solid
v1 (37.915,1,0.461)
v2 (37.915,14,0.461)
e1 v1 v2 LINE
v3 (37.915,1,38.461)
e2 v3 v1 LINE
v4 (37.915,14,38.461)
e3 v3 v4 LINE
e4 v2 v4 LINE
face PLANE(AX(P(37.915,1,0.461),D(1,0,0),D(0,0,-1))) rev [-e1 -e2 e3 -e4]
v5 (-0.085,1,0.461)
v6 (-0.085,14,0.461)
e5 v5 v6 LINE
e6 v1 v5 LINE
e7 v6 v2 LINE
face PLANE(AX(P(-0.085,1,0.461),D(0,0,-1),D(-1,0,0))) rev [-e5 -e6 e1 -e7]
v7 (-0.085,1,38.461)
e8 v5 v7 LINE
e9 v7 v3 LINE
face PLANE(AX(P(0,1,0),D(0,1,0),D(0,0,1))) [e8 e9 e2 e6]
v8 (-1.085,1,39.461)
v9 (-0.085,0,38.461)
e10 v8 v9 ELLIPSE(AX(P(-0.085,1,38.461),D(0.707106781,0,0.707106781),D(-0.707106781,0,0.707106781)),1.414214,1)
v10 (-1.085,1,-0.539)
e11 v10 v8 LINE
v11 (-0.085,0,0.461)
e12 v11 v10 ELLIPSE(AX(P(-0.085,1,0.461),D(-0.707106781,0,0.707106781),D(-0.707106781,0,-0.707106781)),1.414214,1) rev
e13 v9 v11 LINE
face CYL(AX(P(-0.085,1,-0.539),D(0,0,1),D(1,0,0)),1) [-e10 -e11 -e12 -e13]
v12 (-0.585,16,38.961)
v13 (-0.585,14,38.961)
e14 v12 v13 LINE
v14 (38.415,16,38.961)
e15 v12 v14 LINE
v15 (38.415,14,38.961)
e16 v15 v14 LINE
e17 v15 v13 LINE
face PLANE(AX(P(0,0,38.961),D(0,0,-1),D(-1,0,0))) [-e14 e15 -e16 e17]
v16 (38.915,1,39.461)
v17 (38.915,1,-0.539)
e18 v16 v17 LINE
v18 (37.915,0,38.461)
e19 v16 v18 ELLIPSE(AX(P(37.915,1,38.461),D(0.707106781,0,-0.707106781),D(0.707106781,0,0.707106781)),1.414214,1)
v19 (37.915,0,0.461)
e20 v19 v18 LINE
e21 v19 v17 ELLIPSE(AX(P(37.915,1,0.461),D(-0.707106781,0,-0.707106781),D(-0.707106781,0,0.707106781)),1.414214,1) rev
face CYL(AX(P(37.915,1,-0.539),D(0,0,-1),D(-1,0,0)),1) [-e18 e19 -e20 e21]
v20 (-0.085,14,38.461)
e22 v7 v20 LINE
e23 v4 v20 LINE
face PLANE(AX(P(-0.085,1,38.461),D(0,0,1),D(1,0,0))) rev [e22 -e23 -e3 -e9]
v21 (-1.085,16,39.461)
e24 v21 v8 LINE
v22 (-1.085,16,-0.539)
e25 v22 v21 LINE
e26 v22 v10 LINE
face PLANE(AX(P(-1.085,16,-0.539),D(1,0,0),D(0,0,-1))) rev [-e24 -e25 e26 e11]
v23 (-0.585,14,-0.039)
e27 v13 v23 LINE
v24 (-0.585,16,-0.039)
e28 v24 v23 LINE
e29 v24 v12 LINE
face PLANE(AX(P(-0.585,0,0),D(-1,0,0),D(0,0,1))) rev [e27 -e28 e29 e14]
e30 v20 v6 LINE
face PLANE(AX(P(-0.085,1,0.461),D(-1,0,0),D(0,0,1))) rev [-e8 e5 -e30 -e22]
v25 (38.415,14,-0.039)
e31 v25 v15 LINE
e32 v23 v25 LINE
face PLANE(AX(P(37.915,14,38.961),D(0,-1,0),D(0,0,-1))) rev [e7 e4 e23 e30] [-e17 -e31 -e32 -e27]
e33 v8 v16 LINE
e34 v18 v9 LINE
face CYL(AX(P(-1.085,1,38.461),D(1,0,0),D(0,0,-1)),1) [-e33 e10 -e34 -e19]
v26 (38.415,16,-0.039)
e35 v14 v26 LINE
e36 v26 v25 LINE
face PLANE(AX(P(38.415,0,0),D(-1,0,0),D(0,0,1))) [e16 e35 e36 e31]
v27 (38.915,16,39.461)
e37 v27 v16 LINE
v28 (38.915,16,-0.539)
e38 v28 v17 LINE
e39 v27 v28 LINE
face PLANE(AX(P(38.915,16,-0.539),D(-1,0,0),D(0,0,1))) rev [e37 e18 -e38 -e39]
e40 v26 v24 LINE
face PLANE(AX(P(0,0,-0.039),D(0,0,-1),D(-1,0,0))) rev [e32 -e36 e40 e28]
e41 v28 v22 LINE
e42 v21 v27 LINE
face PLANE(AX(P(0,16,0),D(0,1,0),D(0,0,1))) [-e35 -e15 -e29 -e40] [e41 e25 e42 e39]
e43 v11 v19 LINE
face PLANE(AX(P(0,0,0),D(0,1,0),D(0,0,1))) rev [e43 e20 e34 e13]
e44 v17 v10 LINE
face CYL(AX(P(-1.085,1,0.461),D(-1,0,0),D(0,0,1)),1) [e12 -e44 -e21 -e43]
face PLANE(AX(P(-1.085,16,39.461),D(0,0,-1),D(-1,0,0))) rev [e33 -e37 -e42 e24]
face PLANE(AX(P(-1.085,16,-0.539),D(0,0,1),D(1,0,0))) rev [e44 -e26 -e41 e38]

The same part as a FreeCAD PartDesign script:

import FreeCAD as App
import Part
import Sketcher
from FreeCAD import Vector
Q = App.Units.Quantity


def edges_at(feature, points):
    """Names of the edges that pass closest to the given points."""
    edges = feature.Shape.Edges
    near = lambda p: min(range(len(edges)), key=lambda i: edges[i].distToShape(Part.Vertex(*p))[0])
    return sorted({f"Edge{near(p) + 1}" for p in points})

doc = App.newDocument("Part")
body = doc.addObject("PartDesign::Body", "Body")

sketch1 = body.newObject("Sketcher::SketchObject", "Sketch")
sketch1.AttachmentSupport = (doc.getObject("XZ_Plane"), [""])
sketch1.MapMode = "FlatFace"
sketch1.addGeometry([
    Part.LineSegment(Vector(-1.085, -0.539, 0), Vector(-1.085, 39.461, 0)),
    Part.LineSegment(Vector(-1.085, 39.461, 0), Vector(38.915, 39.461, 0)),
    Part.LineSegment(Vector(38.915, 39.461, 0), Vector(38.915, -0.539, 0)),
    Part.LineSegment(Vector(38.915, -0.539, 0), Vector(-1.085, -0.539, 0)),
], False)
sketch1.addConstraint([
    Sketcher.Constraint("Coincident", 0, 2, 1, 1),
    Sketcher.Constraint("Coincident", 1, 2, 2, 1),
    Sketcher.Constraint("Coincident", 2, 2, 3, 1),
    Sketcher.Constraint("Coincident", 3, 2, 0, 1),
    Sketcher.Constraint("Vertical", 0),
    Sketcher.Constraint("Horizontal", 1),
    Sketcher.Constraint("Vertical", 2),
    Sketcher.Constraint("Horizontal", 3),
    Sketcher.Constraint("Equal", 3, 0),
    Sketcher.Constraint("DistanceX", 1, 1, 1, 2, Q("40 mm")),
    Sketcher.Constraint("DistanceX", 0, 2, -1, 1, Q("1.085 mm")),
    Sketcher.Constraint("DistanceY", -1, 1, 0, 2, Q("39.461 mm")),
])
pad1 = body.newObject("PartDesign::Pad", "Pad")
pad1.Profile = sketch1
pad1.Length = 16
pad1.Reversed = True

sketch2 = body.newObject("Sketcher::SketchObject", "Sketch001")
sketch2.AttachmentSupport = (doc.getObject("XZ_Plane"), [""])
sketch2.MapMode = "FlatFace"
sketch2.AttachmentOffset = App.Placement(Vector(0, 0, -16), App.Rotation())
sketch2.addGeometry([
    Part.LineSegment(Vector(-0.085, 0.461, 0), Vector(-0.085, 38.461, 0)),
    Part.LineSegment(Vector(-0.085, 38.461, 0), Vector(37.915, 38.461, 0)),
    Part.LineSegment(Vector(37.915, 38.461, 0), Vector(37.915, 0.461, 0)),
    Part.LineSegment(Vector(37.915, 0.461, 0), Vector(-0.085, 0.461, 0)),
], False)
sketch2.addConstraint([
    Sketcher.Constraint("Coincident", 0, 2, 1, 1),
    Sketcher.Constraint("Coincident", 1, 2, 2, 1),
    Sketcher.Constraint("Coincident", 2, 2, 3, 1),
    Sketcher.Constraint("Coincident", 3, 2, 0, 1),
    Sketcher.Constraint("Vertical", 0),
    Sketcher.Constraint("Horizontal", 1),
    Sketcher.Constraint("Vertical", 2),
    Sketcher.Constraint("Horizontal", 3),
    Sketcher.Constraint("Equal", 3, 0),
    Sketcher.Constraint("DistanceX", 1, 1, 1, 2, Q("38 mm")),
    Sketcher.Constraint("DistanceX", 0, 2, -1, 1, Q("0.085 mm")),
    Sketcher.Constraint("DistanceY", -1, 1, 0, 2, Q("38.461 mm")),
])
pocket1 = body.newObject("PartDesign::Pocket", "Pocket")
pocket1.Profile = sketch2
pocket1.Length = 15
pocket1.Reversed = True
doc.recompute()

fillet = body.newObject("PartDesign::Fillet", "Fillet")
fillet.Base = (pocket1, edges_at(pocket1, [
    (18.915, 0, -0.539),
    (38.915, 0, 19.461),
    (18.915, 0, 39.461),
    (-1.085, 0, 19.461),
]))
fillet.Radius = 1

sketch3 = body.newObject("Sketcher::SketchObject", "Sketch002")
sketch3.AttachmentSupport = (doc.getObject("XY_Plane"), [""])
sketch3.MapMode = "FlatFace"
sketch3.AttachmentOffset = App.Placement(Vector(0, 0, 38.461), App.Rotation())
sketch3.addGeometry([
    Part.LineSegment(Vector(37.915, 16, 0), Vector(37.915, 14, 0)),
    Part.LineSegment(Vector(37.915, 14, 0), Vector(-0.085, 14, 0)),
    Part.LineSegment(Vector(-0.085, 14, 0), Vector(-0.085, 16, 0)),
    Part.LineSegment(Vector(-0.085, 16, 0), Vector(37.915, 16, 0)),
], False)
sketch3.addConstraint([
    Sketcher.Constraint("Coincident", 0, 2, 1, 1),
    Sketcher.Constraint("Coincident", 1, 2, 2, 1),
    Sketcher.Constraint("Coincident", 2, 2, 3, 1),
    Sketcher.Constraint("Coincident", 3, 2, 0, 1),
    Sketcher.Constraint("Vertical", 0),
    Sketcher.Constraint("Horizontal", 1),
    Sketcher.Constraint("Vertical", 2),
    Sketcher.Constraint("Horizontal", 3),
    Sketcher.Constraint("DistanceX", 1, 2, 1, 1, Q("38 mm")),
    Sketcher.Constraint("DistanceY", 0, 2, 0, 1, Q("2 mm")),
    Sketcher.Constraint("DistanceY", -1, 1, 0, 2, Q("14 mm")),
    Sketcher.Constraint("DistanceX", -1, 1, 0, 2, Q("37.915 mm")),
])
pocket2 = body.newObject("PartDesign::Pocket", "Pocket001")
pocket2.Profile = sketch3
pocket2.Length = 0.5
pocket2.Reversed = True

sketch4 = body.newObject("Sketcher::SketchObject", "Sketch003")
sketch4.AttachmentSupport = (doc.getObject("YZ_Plane"), [""])
sketch4.MapMode = "FlatFace"
sketch4.AttachmentOffset = App.Placement(Vector(0, 0, -0.085), App.Rotation())
sketch4.addGeometry([
    Part.LineSegment(Vector(16, 38.961, 0), Vector(14, 38.961, 0)),
    Part.LineSegment(Vector(14, 38.961, 0), Vector(14, 0.461, 0)),
    Part.LineSegment(Vector(14, 0.461, 0), Vector(16, 0.461, 0)),
    Part.LineSegment(Vector(16, 0.461, 0), Vector(16, 38.961, 0)),
], False)
sketch4.addConstraint([
    Sketcher.Constraint("Coincident", 0, 2, 1, 1),
    Sketcher.Constraint("Coincident", 1, 2, 2, 1),
    Sketcher.Constraint("Coincident", 2, 2, 3, 1),
    Sketcher.Constraint("Coincident", 3, 2, 0, 1),
    Sketcher.Constraint("Horizontal", 0),
    Sketcher.Constraint("Vertical", 1),
    Sketcher.Constraint("Horizontal", 2),
    Sketcher.Constraint("Vertical", 3),
    Sketcher.Constraint("DistanceX", 0, 2, 0, 1, Q("2 mm")),
    Sketcher.Constraint("DistanceY", 1, 2, 1, 1, Q("38.5 mm")),
    Sketcher.Constraint("DistanceX", -1, 1, 0, 2, Q("14 mm")),
    Sketcher.Constraint("DistanceY", -1, 1, 0, 2, Q("38.961 mm")),
])
pocket3 = body.newObject("PartDesign::Pocket", "Pocket002")
pocket3.Profile = sketch4
pocket3.Length = 0.5

sketch5 = body.newObject("Sketcher::SketchObject", "Sketch004")
sketch5.AttachmentSupport = (doc.getObject("XY_Plane"), [""])
sketch5.MapMode = "FlatFace"
sketch5.AttachmentOffset = App.Placement(Vector(0, 0, 0.461), App.Rotation())
sketch5.addGeometry([
    Part.LineSegment(Vector(-0.585, 16, 0), Vector(-0.585, 14, 0)),
    Part.LineSegment(Vector(-0.585, 14, 0), Vector(37.915, 14, 0)),
    Part.LineSegment(Vector(37.915, 14, 0), Vector(37.915, 16, 0)),
    Part.LineSegment(Vector(37.915, 16, 0), Vector(-0.585, 16, 0)),
], False)
sketch5.addConstraint([
    Sketcher.Constraint("Coincident", 0, 2, 1, 1),
    Sketcher.Constraint("Coincident", 1, 2, 2, 1),
    Sketcher.Constraint("Coincident", 2, 2, 3, 1),
    Sketcher.Constraint("Coincident", 3, 2, 0, 1),
    Sketcher.Constraint("Vertical", 0),
    Sketcher.Constraint("Horizontal", 1),
    Sketcher.Constraint("Vertical", 2),
    Sketcher.Constraint("Horizontal", 3),
    Sketcher.Constraint("DistanceY", 0, 2, 0, 1, Q("2 mm")),
    Sketcher.Constraint("DistanceX", 1, 1, 1, 2, Q("38.5 mm")),
    Sketcher.Constraint("DistanceY", -1, 1, 0, 2, Q("14 mm")),
    Sketcher.Constraint("DistanceX", 0, 2, -1, 1, Q("0.585 mm")),
])
pocket4 = body.newObject("PartDesign::Pocket", "Pocket003")
pocket4.Profile = sketch5
pocket4.Length = 0.5

sketch6 = body.newObject("Sketcher::SketchObject", "Sketch005")
sketch6.AttachmentSupport = (doc.getObject("YZ_Plane"), [""])
sketch6.MapMode = "FlatFace"
sketch6.AttachmentOffset = App.Placement(Vector(0, 0, 37.915), App.Rotation())
sketch6.addGeometry([
    Part.LineSegment(Vector(16, -0.039, 0), Vector(14, -0.039, 0)),
    Part.LineSegment(Vector(14, -0.039, 0), Vector(14, 38.961, 0)),
    Part.LineSegment(Vector(14, 38.961, 0), Vector(16, 38.961, 0)),
    Part.LineSegment(Vector(16, 38.961, 0), Vector(16, -0.039, 0)),
], False)
sketch6.addConstraint([
    Sketcher.Constraint("Coincident", 0, 2, 1, 1),
    Sketcher.Constraint("Coincident", 1, 2, 2, 1),
    Sketcher.Constraint("Coincident", 2, 2, 3, 1),
    Sketcher.Constraint("Coincident", 3, 2, 0, 1),
    Sketcher.Constraint("Horizontal", 0),
    Sketcher.Constraint("Vertical", 1),
    Sketcher.Constraint("Horizontal", 2),
    Sketcher.Constraint("Vertical", 3),
    Sketcher.Constraint("DistanceX", 0, 2, 0, 1, Q("2 mm")),
    Sketcher.Constraint("DistanceY", 1, 1, 1, 2, Q("39 mm")),
    Sketcher.Constraint("DistanceX", -1, 1, 0, 2, Q("14 mm")),
    Sketcher.Constraint("DistanceY", 0, 2, -1, 1, Q("0.039 mm")),
])
pocket5 = body.newObject("PartDesign::Pocket", "Pocket004")
pocket5.Profile = sketch6
pocket5.Length = 0.5
pocket5.Reversed = True

doc.recompute()
